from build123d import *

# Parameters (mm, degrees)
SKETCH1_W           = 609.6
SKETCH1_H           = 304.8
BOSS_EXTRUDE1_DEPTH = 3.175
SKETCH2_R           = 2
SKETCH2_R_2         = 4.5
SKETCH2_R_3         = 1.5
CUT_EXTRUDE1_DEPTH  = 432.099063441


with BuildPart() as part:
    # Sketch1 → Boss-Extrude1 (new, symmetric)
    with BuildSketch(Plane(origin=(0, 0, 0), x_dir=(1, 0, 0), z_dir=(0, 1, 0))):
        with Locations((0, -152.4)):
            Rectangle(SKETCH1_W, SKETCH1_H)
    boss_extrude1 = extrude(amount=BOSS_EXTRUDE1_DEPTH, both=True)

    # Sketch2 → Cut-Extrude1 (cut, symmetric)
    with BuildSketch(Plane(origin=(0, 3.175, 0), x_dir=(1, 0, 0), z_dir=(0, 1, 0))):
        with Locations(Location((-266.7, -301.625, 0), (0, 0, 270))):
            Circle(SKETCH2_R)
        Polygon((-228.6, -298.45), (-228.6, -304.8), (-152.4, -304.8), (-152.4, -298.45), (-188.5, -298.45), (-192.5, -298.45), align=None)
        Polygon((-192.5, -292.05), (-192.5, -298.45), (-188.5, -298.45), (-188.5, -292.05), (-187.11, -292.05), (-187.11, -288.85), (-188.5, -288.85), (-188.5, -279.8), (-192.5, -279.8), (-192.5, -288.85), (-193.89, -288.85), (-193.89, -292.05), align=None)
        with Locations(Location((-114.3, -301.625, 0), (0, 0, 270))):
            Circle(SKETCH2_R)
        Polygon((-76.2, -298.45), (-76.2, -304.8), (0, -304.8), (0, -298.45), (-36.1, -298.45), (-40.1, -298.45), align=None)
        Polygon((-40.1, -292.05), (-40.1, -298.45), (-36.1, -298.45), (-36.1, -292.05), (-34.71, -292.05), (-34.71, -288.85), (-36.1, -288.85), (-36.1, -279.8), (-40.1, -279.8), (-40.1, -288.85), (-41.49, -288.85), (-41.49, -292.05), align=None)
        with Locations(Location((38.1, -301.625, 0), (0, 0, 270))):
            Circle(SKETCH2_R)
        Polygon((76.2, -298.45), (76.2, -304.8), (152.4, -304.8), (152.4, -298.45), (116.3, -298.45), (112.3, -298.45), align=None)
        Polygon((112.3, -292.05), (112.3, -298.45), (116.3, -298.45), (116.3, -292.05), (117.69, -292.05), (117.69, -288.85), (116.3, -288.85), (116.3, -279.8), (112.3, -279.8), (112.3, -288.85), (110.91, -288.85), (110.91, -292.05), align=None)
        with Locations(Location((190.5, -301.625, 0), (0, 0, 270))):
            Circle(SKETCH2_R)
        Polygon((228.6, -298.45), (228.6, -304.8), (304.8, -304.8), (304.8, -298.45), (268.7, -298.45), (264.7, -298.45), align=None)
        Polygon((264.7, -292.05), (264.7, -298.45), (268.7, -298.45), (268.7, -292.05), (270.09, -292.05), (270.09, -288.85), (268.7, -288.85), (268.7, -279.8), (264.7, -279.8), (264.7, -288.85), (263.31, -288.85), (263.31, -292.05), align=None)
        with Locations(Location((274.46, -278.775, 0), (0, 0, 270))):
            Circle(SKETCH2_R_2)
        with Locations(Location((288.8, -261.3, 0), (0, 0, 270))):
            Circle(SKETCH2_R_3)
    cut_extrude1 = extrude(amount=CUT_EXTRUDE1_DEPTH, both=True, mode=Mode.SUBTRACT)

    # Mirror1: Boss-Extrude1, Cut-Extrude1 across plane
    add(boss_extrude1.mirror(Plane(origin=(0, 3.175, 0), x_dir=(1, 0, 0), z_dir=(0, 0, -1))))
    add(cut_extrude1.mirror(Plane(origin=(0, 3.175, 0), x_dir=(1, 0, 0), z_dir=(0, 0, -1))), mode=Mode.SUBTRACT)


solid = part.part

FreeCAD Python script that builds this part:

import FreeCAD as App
import Part
import Sketcher

V = App.Vector
Q = App.Units.Quantity


def add_polygon(sketch, points):
    """Adds a closed chain of lines whose ends are joined by coincident constraints."""
    first, n = sketch.GeometryCount, len(points)
    for a, b in zip(points, points[1:] + points[:1]):
        sketch.addGeometry(Part.LineSegment(App.Vector(*a, 0), App.Vector(*b, 0)), False)
    for i in range(n):
        sketch.addConstraint(Sketcher.Constraint("Coincident", first + i, 2, first + (i + 1) % n, 1))

doc = App.newDocument("Part")
params = doc.addObject("Spreadsheet::Sheet", "Params")
for row, (alias, value) in enumerate([
    ("sketch1_width", "609.6 mm"),
    ("sketch1_height", "304.8 mm"),
    ("pad1_length", "6.35 mm"),
    ("sketch2_diameter", "4 mm"),
    ("sketch2_diameter2", "9 mm"),
    ("sketch2_diameter3", "3 mm"),
    ("sketch2_width", "4 mm"),
    ("sketch2_width2", "76.2 mm"),
    ("pocket1_length", "864.198127 mm"),
], start=1):
    params.set(f"A{row}", alias)
    params.set(f"B{row}", "=" + value)
    params.setAlias(f"B{row}", alias)

body = doc.addObject("PartDesign::Body", "Body")

# Sketch on XZ plane
sketch1 = body.newObject("Sketcher::SketchObject", "Sketch")
sketch1.AttachmentSupport = (doc.getObject("XZ_Plane"), [""])
sketch1.MapMode = "FlatFace"
add_polygon(sketch1, [(-305, 0), (-305, 305), (305, 305), (305, 0)])  # lines 0-3
sketch1.addConstraint([
    Sketcher.Constraint("Vertical", 0),
    Sketcher.Constraint("Horizontal", 1),
    Sketcher.Constraint("Vertical", 2),
    Sketcher.Constraint("Horizontal", 3),
    Sketcher.Constraint("Symmetric", 2, 2, 3, 2, -1, 1),
    Sketcher.Constraint("DistanceX", 1, 1, 1, 2, Q("609.6 mm")),
    Sketcher.Constraint("DistanceY", 0, 1, 0, 2, Q("304.8 mm")),
])
sketch1.setExpression("Constraints[9]", "Params.sketch1_width")
sketch1.setExpression("Constraints[10]", "Params.sketch1_height")
pad1 = body.newObject("PartDesign::Pad", "Pad")
pad1.Profile = sketch1
pad1.setExpression("Length", "Params.pad1_length")
pad1.Midplane = True

# Sketch on XZ plane
sketch2 = body.newObject("Sketcher::SketchObject", "Sketch001")
sketch2.AttachmentSupport = (doc.getObject("XZ_Plane"), [""])
sketch2.MapMode = "FlatFace"
sketch2.AttachmentOffset = App.Placement(V(0, 0, -3.175), App.Rotation())
sketch2.addGeometry(Part.Circle(V(-266.7, 301.6, 0), V(0, 0, 1), 2), False)  # 0
add_polygon(sketch2, [(-228.6, 298.4), (-228.6, 304.8), (-152.4, 304.8), (-152.4, 298.4), (-188.5, 298.4), (-188.5, 292.1), (-187.1, 292.1), (-187.1, 288.9), (-188.5, 288.9), (-188.5, 279.8), (-192.5, 279.8), (-192.5, 288.9), (-193.9, 288.9), (-193.9, 292.1), (-192.5, 292.1), (-192.5, 298.4)])  # lines 1-16
sketch2.addGeometry(Part.Circle(V(-114.3, 301.6, 0), V(0, 0, 1), 2), False)  # 17
add_polygon(sketch2, [(-76.2, 298.4), (-76.2, 304.8), (0, 304.8), (0, 298.4), (-36.1, 298.4), (-36.1, 292.1), (-34.7, 292.1), (-34.7, 288.9), (-36.1, 288.9), (-36.1, 279.8), (-40.1, 279.8), (-40.1, 288.9), (-41.5, 288.9), (-41.5, 292.1), (-40.1, 292.1), (-40.1, 298.4)])  # lines 18-33
sketch2.addGeometry(Part.Circle(V(38.1, 301.6, 0), V(0, 0, 1), 2), False)  # 34
add_polygon(sketch2, [(76.2, 298.4), (76.2, 304.8), (152.4, 304.8), (152.4, 298.4), (116.3, 298.4), (116.3, 292.1), (117.7, 292.1), (117.7, 288.9), (116.3, 288.9), (116.3, 279.8), (112.3, 279.8), (112.3, 288.9), (110.9, 288.9), (110.9, 292.1), (112.3, 292.1), (112.3, 298.4)])  # lines 35-50
sketch2.addGeometry(Part.Circle(V(190.5, 301.6, 0), V(0, 0, 1), 2), False)  # 51
add_polygon(sketch2, [(228.6, 298.4), (228.6, 304.8), (304.8, 304.8), (304.8, 298.4), (268.7, 298.4), (268.7, 292.1), (270.1, 292.1), (270.1, 288.9), (268.7, 288.9), (268.7, 279.8), (264.7, 279.8), (264.7, 288.9), (263.3, 288.9), (263.3, 292.1), (264.7, 292.1), (264.7, 298.4)])  # lines 52-67
sketch2.addGeometry(Part.Circle(V(274.5, 278.8, 0), V(0, 0, 1), 4.5), False)  # 68
sketch2.addGeometry(Part.Circle(V(288.8, 261.3, 0), V(0, 0, 1), 1.5), False)  # 69
sketch2.addConstraint([
    Sketcher.Constraint("Vertical", 1),
    Sketcher.Constraint("Horizontal", 2),
    Sketcher.Constraint("Vertical", 3),
    Sketcher.Constraint("Horizontal", 4),
    Sketcher.Constraint("Vertical", 5),
    Sketcher.Constraint("Horizontal", 6),
    Sketcher.Constraint("Vertical", 7),
    Sketcher.Constraint("Horizontal", 8),
    Sketcher.Constraint("Vertical", 9),
    Sketcher.Constraint("Horizontal", 10),
    Sketcher.Constraint("Vertical", 11),
    Sketcher.Constraint("Horizontal", 12),
    Sketcher.Constraint("Vertical", 13),
    Sketcher.Constraint("Horizontal", 14),
    Sketcher.Constraint("Vertical", 15),
    Sketcher.Constraint("Horizontal", 16),
    Sketcher.Constraint("Vertical", 18),
    Sketcher.Constraint("Horizontal", 19),
    Sketcher.Constraint("Vertical", 20),
    Sketcher.Constraint("Horizontal", 21),
    Sketcher.Constraint("Vertical", 22),
    Sketcher.Constraint("Horizontal", 23),
    Sketcher.Constraint("Vertical", 24),
    Sketcher.Constraint("Horizontal", 25),
    Sketcher.Constraint("Vertical", 26),
    Sketcher.Constraint("Horizontal", 27),
    Sketcher.Constraint("Vertical", 28),
    Sketcher.Constraint("Horizontal", 29),
    Sketcher.Constraint("Vertical", 30),
    Sketcher.Constraint("Horizontal", 31),
    Sketcher.Constraint("Vertical", 32),
    Sketcher.Constraint("Horizontal", 33),
    Sketcher.Constraint("Vertical", 35),
    Sketcher.Constraint("Horizontal", 36),
    Sketcher.Constraint("Vertical", 37),
    Sketcher.Constraint("Horizontal", 38),
    Sketcher.Constraint("Vertical", 39),
    Sketcher.Constraint("Horizontal", 40),
    Sketcher.Constraint("Vertical", 41),
    Sketcher.Constraint("Horizontal", 42),
    Sketcher.Constraint("Vertical", 43),
    Sketcher.Constraint("Horizontal", 44),
    Sketcher.Constraint("Vertical", 45),
    Sketcher.Constraint("Horizontal", 46),
    Sketcher.Constraint("Vertical", 47),
    Sketcher.Constraint("Horizontal", 48),
    Sketcher.Constraint("Vertical", 49),
    Sketcher.Constraint("Horizontal", 50),
    Sketcher.Constraint("Vertical", 52),
    Sketcher.Constraint("Horizontal", 53),
    Sketcher.Constraint("Vertical", 54),
    Sketcher.Constraint("Horizontal", 55),
    Sketcher.Constraint("Vertical", 56),
    Sketcher.Constraint("Horizontal", 57),
    Sketcher.Constraint("Vertical", 58),
    Sketcher.Constraint("Horizontal", 59),
    Sketcher.Constraint("Vertical", 60),
    Sketcher.Constraint("Horizontal", 61),
    Sketcher.Constraint("Vertical", 62),
    Sketcher.Constraint("Horizontal", 63),
    Sketcher.Constraint("Vertical", 64),
    Sketcher.Constraint("Horizontal", 65),
    Sketcher.Constraint("Vertical", 66),
    Sketcher.Constraint("Horizontal", 67),
    Sketcher.Constraint("Equal", 0, 17),
    Sketcher.Constraint("Equal", 17, 34),
    Sketcher.Constraint("Equal", 34, 51),
    Sketcher.Constraint("Symmetric", 18, 2, 35, 2, -2),
    Sketcher.Constraint("Symmetric", 2, 2, 36, 2, -2),
    Sketcher.Constraint("Symmetric", 1, 2, 52, 2, -2),
    Sketcher.Constraint("PointOnObject", 19, 2, -2),
    Sketcher.Constraint("Horizontal", 0, 3, 17, 3),
    Sketcher.Constraint("Horizontal", 17, 3, 34, 3),
    Sketcher.Constraint("Horizontal", 34, 3, 51, 3),
    Sketcher.Constraint("Horizontal", 8, 2, 11, 2),
    Sketcher.Constraint("Horizontal", 6, 2, 13, 2),
    Sketcher.Constraint("Horizontal", 4, 2, 15, 2),
    Sketcher.Constraint("Horizontal", 16, 2, 20, 2),
    Sketcher.Constraint("Horizontal", 14, 2, 22, 2),
    Sketcher.Constraint("Horizontal", 12, 2, 24, 2),
    Sketcher.Constraint("Horizontal", 10, 2, 26, 2),
    Sketcher.Constraint("Horizontal", 25, 2, 28, 2),
    Sketcher.Constraint("Horizontal", 23, 2, 30, 2),
    Sketcher.Constraint("Horizontal", 21, 2, 32, 2),
    Sketcher.Constraint("Horizontal", 33, 2, 37, 2),
    Sketcher.Constraint("Horizontal", 31, 2, 39, 2),
    Sketcher.Constraint("Horizontal", 29, 2, 41, 2),
    Sketcher.Constraint("Horizontal", 27, 2, 43, 2),
    Sketcher.Constraint("Horizontal", 42, 2, 45, 2),
    Sketcher.Constraint("Horizontal", 40, 2, 47, 2),
    Sketcher.Constraint("Horizontal", 38, 2, 49, 2),
    Sketcher.Constraint("Horizontal", 50, 2, 54, 2),
    Sketcher.Constraint("Horizontal", 48, 2, 56, 2),
    Sketcher.Constraint("Horizontal", 46, 2, 58, 2),
    Sketcher.Constraint("Horizontal", 44, 2, 60, 2),
    Sketcher.Constraint("Horizontal", 59, 2, 62, 2),
    Sketcher.Constraint("Horizontal", 57, 2, 64, 2),
    Sketcher.Constraint("Horizontal", 55, 2, 66, 2),
    Sketcher.Constraint("Vertical", 5, 2, 8, 2),
    Sketcher.Constraint("Vertical", 11, 2, 14, 2),
    Sketcher.Constraint("Vertical", 22, 2, 25, 2),
    Sketcher.Constraint("Vertical", 28, 2, 31, 2),
    Sketcher.Constraint("Vertical", 39, 2, 42, 2),
    Sketcher.Constraint("Vertical", 45, 2, 48, 2),
    Sketcher.Constraint("Vertical", 56, 2, 59, 2),
    Sketcher.Constraint("Vertical", 62, 2, 65, 2),
    Sketcher.Constraint("Equal", 8, 12),
    Sketcher.Constraint("Equal", 4, 16),
    Sketcher.Constraint("Equal", 2, 19),
    Sketcher.Constraint("Equal", 16, 21),
    Sketcher.Constraint("Equal", 14, 23),
    Sketcher.Constraint("Equal", 10, 27),
    Sketcher.Constraint("Equal", 25, 29),
    Sketcher.Constraint("Equal", 19, 36),
    Sketcher.Constraint("Equal", 33, 38),
    Sketcher.Constraint("Equal", 31, 40),
    Sketcher.Constraint("Equal", 27, 44),
    Sketcher.Constraint("Equal", 42, 46),
    Sketcher.Constraint("Equal", 36, 53),
    Sketcher.Constraint("Equal", 50, 55),
    Sketcher.Constraint("Equal", 48, 57),
    Sketcher.Constraint("Equal", 44, 61),
    Sketcher.Constraint("Equal", 59, 63),
    Sketcher.Constraint("Diameter", 0, Q("4 mm")),
    Sketcher.Constraint("Diameter", 68, Q("9 mm")),
    Sketcher.Constraint("Diameter", 69, Q("3 mm")),
    Sketcher.Constraint("DistanceX", 10, 2, 10, 1, Q("4 mm")),
    Sketcher.Constraint("DistanceX", 2, 1, 2, 2, Q("76.2 mm")),
    Sketcher.Constraint("DistanceY", 5, 2, 5, 1, Q("6.4 mm")),
    Sketcher.Constraint("DistanceY", 7, 2, 7, 1, Q("3.2 mm")),
    Sketcher.Constraint("DistanceX", 6, 1, 6, 2, Q("1.39 mm")),
    Sketcher.Constraint("DistanceY", 1, 1, 1, 2, Q("6.35 mm")),
    Sketcher.Constraint("DistanceY", 9, 2, 9, 1, Q("9.05 mm")),
    Sketcher.Constraint("DistanceX", 0, 3, -1, 1, Q("266.7 mm")),
    Sketcher.Constraint("DistanceX", 17, 3, -1, 1, Q("114.3 mm")),
    Sketcher.Constraint("DistanceX", -1, 1, 34, 3, Q("38.1 mm")),
    Sketcher.Constraint("DistanceX", -1, 1, 51, 3, Q("190.5 mm")),
    Sketcher.Constraint("DistanceX", -1, 1, 69, 3, Q("288.8 mm")),
    Sketcher.Constraint("DistanceY", -1, 1, 69, 3, Q("261.3 mm")),
    Sketcher.Constraint("DistanceY", -1, 1, 1, 2, Q("304.8 mm")),
    Sketcher.Constraint("DistanceX", -1, 1, 68, 3, Q("274.46 mm")),
    Sketcher.Constraint("DistanceY", -1, 1, 0, 3, Q("301.625 mm")),
    Sketcher.Constraint("DistanceY", -1, 1, 68, 3, Q("278.775 mm")),
])
sketch2.setExpression("Constraints[187]", "Params.sketch2_diameter")
sketch2.setExpression("Constraints[188]", "Params.sketch2_diameter2")
sketch2.setExpression("Constraints[189]", "Params.sketch2_diameter3")
sketch2.setExpression("Constraints[190]", "Params.sketch2_width")
sketch2.setExpression("Constraints[191]", "Params.sketch2_width2")
pocket1 = body.newObject("PartDesign::Pocket", "Pocket")
pocket1.Profile = sketch2
pocket1.setExpression("Length", "Params.pocket1_length")
pocket1.Midplane = True
doc.recompute()

mirrored = body.newObject("PartDesign::Mirrored", "Mirrored")
mirrored.Originals = [pad1, pocket1]
mirrored.MirrorPlane = (doc.getObject("XY_Plane"), [""])
body.Tip = mirrored

doc.recompute()
